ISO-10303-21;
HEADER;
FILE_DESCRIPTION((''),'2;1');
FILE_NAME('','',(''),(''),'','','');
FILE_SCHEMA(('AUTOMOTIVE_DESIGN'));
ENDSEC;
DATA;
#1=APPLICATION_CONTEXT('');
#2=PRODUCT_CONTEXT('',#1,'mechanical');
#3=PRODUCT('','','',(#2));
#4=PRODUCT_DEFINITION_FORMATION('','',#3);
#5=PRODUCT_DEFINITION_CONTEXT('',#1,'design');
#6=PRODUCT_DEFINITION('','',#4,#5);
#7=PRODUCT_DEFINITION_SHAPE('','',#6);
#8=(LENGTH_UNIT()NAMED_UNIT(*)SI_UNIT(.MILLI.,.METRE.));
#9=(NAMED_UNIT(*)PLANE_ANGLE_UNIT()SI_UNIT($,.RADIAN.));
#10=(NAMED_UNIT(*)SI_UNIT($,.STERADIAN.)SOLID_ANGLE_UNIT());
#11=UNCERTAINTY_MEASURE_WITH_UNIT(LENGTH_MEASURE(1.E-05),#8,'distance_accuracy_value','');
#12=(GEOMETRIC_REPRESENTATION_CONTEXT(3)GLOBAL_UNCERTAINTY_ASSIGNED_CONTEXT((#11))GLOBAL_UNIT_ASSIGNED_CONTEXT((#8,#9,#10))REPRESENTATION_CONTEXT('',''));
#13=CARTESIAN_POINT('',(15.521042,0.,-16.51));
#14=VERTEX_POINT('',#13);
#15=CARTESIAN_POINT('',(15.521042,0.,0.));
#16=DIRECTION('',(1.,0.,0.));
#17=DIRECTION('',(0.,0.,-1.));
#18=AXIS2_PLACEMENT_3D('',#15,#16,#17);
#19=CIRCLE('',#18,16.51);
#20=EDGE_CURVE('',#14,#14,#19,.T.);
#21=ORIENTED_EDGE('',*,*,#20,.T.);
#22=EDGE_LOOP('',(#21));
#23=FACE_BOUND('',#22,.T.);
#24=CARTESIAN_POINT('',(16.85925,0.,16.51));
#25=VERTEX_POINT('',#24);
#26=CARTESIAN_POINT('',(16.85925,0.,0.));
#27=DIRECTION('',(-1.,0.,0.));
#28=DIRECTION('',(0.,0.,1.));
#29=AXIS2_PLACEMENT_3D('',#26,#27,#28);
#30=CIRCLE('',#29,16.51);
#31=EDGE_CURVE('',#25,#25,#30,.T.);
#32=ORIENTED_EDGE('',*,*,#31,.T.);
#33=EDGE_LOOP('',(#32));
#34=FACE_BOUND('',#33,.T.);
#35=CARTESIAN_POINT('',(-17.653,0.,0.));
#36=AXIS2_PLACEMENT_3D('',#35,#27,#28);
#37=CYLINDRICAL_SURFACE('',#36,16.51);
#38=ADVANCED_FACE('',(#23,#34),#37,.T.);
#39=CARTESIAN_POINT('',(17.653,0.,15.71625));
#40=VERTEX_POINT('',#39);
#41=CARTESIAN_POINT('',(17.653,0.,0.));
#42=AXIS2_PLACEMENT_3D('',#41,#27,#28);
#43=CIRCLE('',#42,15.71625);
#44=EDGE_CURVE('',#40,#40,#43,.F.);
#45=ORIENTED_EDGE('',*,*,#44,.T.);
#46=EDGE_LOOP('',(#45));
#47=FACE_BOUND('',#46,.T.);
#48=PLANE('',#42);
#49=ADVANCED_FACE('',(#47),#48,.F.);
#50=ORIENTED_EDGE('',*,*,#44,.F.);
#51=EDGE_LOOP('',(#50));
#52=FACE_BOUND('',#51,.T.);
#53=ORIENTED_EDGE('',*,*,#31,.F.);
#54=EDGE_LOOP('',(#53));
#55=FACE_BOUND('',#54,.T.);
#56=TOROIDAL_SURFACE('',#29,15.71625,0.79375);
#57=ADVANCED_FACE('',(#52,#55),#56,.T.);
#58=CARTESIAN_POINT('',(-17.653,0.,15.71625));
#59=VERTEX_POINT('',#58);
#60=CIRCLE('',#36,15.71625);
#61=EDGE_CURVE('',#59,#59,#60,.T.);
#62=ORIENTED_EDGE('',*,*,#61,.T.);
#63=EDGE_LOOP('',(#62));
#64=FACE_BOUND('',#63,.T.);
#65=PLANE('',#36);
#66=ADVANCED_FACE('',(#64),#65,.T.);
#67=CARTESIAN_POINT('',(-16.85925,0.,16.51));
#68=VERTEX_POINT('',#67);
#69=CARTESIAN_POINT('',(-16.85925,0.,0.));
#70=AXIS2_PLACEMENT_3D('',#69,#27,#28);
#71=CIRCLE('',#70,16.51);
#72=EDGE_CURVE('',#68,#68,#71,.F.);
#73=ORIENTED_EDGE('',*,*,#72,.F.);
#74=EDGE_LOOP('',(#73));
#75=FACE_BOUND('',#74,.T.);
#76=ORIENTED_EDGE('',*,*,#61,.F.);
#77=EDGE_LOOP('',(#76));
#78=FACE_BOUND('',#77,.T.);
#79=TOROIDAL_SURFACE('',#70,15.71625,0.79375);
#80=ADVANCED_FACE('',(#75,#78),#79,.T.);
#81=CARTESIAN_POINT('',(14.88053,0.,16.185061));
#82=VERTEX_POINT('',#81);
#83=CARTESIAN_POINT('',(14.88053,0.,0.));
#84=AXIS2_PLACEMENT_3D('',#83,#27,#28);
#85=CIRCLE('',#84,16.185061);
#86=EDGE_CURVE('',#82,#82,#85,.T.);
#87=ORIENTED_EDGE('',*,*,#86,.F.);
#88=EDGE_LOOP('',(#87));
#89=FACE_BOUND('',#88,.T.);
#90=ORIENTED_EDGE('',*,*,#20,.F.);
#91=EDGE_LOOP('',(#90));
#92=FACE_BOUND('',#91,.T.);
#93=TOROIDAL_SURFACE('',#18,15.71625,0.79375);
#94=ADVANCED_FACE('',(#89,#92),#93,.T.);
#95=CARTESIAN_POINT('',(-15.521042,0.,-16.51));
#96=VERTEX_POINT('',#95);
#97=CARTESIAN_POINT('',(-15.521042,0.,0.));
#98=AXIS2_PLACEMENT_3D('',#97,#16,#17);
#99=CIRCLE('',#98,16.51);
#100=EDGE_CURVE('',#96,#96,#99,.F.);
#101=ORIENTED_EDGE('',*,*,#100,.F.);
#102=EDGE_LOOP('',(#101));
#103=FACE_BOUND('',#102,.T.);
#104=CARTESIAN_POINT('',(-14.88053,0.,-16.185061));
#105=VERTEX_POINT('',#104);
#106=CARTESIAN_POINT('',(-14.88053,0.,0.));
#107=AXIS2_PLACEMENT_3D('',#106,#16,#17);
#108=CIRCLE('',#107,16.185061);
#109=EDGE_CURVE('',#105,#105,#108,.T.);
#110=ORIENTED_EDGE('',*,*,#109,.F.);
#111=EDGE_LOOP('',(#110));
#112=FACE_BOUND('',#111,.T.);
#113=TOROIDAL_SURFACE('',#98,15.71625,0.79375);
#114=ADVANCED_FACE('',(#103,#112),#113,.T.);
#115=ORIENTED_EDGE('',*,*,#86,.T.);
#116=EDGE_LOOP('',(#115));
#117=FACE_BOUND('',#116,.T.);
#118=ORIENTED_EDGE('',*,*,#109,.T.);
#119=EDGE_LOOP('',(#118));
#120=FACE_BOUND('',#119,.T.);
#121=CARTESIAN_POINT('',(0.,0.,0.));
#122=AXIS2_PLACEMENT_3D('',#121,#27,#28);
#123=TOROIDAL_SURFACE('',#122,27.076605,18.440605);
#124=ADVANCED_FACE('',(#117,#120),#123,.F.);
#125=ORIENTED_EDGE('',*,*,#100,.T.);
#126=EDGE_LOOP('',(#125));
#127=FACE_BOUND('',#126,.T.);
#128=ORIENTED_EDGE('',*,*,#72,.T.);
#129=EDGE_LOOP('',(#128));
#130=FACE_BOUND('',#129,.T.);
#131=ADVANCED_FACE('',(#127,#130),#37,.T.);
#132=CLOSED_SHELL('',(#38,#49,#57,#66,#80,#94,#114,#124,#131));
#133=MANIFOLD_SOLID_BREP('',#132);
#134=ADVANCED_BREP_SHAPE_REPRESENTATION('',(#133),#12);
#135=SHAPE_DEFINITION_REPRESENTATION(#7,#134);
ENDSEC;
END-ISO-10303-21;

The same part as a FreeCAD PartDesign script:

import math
import FreeCAD as App
import Part
import Sketcher
from FreeCAD import Vector
Q = App.Units.Quantity


def edges_at(feature, points):
    """Names of the edges that pass closest to the given points."""
    edges = feature.Shape.Edges
    near = lambda p: min(range(len(edges)), key=lambda i: edges[i].distToShape(Part.Vertex(*p))[0])
    return sorted({f"Edge{near(p) + 1}" for p in points})

doc = App.newDocument("Part")
params = doc.addObject("Spreadsheet::Sheet", "Params")
for row, (alias, value) in enumerate([
    ("sketch1_width", "0.1 in"),
    ("sketch1_width2", "1.39 in"),
    ("sketch1_height", "0.65 in"),
    ("revolution_angle", "360 deg"),
    ("fillet_radius", "0.03125 in"),
], start=1):
    params.set(f"A{row}", alias)
    params.set(f"B{row}", "=" + value)
    params.setAlias(f"B{row}", alias)

body = doc.addObject("PartDesign::Body", "Body")

sketch1 = doc.addObject("Sketcher::SketchObject", "Sketch")
body.addObject(sketch1)
sketch1.AttachmentSupport = (doc.XY_Plane, [""])
sketch1.MapMode = "FlatFace"
sketch1.addGeometry(Part.LineSegment(Vector(-17.7, 0, 0), Vector(17.7, 0, 0)), False)
sketch1.addGeometry(Part.LineSegment(Vector(17.7, 0, 0), Vector(17.7, 16.5, 0)), False)
sketch1.addGeometry(Part.LineSegment(Vector(17.7, 16.5, 0), Vector(15.1, 16.5, 0)), False)
sketch1.addGeometry(Part.ArcOfCircle(Part.Circle(Vector(0, 27.1, 0), Vector(0, 0, 1), 18.4), math.radians(-145), math.radians(-35)), False)
sketch1.addGeometry(Part.LineSegment(Vector(-15.1, 16.5, 0), Vector(-17.7, 16.5, 0)), False)
sketch1.addGeometry(Part.LineSegment(Vector(-17.7, 16.5, 0), Vector(-17.7, 0, 0)), False)
sketch1.addConstraint(Sketcher.Constraint("Coincident", 0, 2, 1, 1))
sketch1.addConstraint(Sketcher.Constraint("Coincident", 1, 2, 2, 1))
sketch1.addConstraint(Sketcher.Constraint("Coincident", 2, 2, 3, 2))
sketch1.addConstraint(Sketcher.Constraint("Coincident", 3, 1, 4, 1))
sketch1.addConstraint(Sketcher.Constraint("Coincident", 4, 2, 5, 1))
sketch1.addConstraint(Sketcher.Constraint("Coincident", 5, 2, 0, 1))
sketch1.addConstraint(Sketcher.Constraint("Horizontal", 0))
sketch1.addConstraint(Sketcher.Constraint("Vertical", 1))
sketch1.addConstraint(Sketcher.Constraint("Horizontal", 2))
sketch1.addConstraint(Sketcher.Constraint("Horizontal", 4))
sketch1.addConstraint(Sketcher.Constraint("Vertical", 5))
sketch1.addConstraint(Sketcher.Constraint("Symmetric", 0, 2, 5, 2, -1, 1))
sketch1.addConstraint(Sketcher.Constraint("Symmetric", 2, 2, 3, 1, -2))
sketch1.addConstraint(Sketcher.Constraint("DistanceX", 2, 2, 2, 1, Q("0.1 in")))
sketch1.addConstraint(Sketcher.Constraint("DistanceX", 0, 1, 0, 2, Q("1.39 in")))
sketch1.addConstraint(Sketcher.Constraint("DistanceY", 1, 1, 1, 2, Q("0.65 in")))
sketch1.addConstraint(Sketcher.Constraint("Radius", 3, Q("18.440605 mm")))
sketch1.setExpression("Constraints[13]", "Params.sketch1_width")
sketch1.setExpression("Constraints[14]", "Params.sketch1_width2")
sketch1.setExpression("Constraints[15]", "Params.sketch1_height")
revolution = doc.addObject("PartDesign::Revolution", "Revolution")
body.addObject(revolution)
revolution.Profile = sketch1
revolution.ReferenceAxis = (sketch1, ["H_Axis"])
revolution.setExpression("Angle", "Params.revolution_angle")
doc.recompute()

fillet = doc.addObject("PartDesign::Fillet", "Fillet")
body.addObject(fillet)
fillet.Base = (revolution, edges_at(revolution, [
    (-17.653, -16.51, 0),
    (-15.113, -16.51, 0),
    (15.113, -16.51, 0),
    (17.653, -16.51, 0),
]))
fillet.setExpression("Radius", "Params.fillet_radius")

doc.recompute()
